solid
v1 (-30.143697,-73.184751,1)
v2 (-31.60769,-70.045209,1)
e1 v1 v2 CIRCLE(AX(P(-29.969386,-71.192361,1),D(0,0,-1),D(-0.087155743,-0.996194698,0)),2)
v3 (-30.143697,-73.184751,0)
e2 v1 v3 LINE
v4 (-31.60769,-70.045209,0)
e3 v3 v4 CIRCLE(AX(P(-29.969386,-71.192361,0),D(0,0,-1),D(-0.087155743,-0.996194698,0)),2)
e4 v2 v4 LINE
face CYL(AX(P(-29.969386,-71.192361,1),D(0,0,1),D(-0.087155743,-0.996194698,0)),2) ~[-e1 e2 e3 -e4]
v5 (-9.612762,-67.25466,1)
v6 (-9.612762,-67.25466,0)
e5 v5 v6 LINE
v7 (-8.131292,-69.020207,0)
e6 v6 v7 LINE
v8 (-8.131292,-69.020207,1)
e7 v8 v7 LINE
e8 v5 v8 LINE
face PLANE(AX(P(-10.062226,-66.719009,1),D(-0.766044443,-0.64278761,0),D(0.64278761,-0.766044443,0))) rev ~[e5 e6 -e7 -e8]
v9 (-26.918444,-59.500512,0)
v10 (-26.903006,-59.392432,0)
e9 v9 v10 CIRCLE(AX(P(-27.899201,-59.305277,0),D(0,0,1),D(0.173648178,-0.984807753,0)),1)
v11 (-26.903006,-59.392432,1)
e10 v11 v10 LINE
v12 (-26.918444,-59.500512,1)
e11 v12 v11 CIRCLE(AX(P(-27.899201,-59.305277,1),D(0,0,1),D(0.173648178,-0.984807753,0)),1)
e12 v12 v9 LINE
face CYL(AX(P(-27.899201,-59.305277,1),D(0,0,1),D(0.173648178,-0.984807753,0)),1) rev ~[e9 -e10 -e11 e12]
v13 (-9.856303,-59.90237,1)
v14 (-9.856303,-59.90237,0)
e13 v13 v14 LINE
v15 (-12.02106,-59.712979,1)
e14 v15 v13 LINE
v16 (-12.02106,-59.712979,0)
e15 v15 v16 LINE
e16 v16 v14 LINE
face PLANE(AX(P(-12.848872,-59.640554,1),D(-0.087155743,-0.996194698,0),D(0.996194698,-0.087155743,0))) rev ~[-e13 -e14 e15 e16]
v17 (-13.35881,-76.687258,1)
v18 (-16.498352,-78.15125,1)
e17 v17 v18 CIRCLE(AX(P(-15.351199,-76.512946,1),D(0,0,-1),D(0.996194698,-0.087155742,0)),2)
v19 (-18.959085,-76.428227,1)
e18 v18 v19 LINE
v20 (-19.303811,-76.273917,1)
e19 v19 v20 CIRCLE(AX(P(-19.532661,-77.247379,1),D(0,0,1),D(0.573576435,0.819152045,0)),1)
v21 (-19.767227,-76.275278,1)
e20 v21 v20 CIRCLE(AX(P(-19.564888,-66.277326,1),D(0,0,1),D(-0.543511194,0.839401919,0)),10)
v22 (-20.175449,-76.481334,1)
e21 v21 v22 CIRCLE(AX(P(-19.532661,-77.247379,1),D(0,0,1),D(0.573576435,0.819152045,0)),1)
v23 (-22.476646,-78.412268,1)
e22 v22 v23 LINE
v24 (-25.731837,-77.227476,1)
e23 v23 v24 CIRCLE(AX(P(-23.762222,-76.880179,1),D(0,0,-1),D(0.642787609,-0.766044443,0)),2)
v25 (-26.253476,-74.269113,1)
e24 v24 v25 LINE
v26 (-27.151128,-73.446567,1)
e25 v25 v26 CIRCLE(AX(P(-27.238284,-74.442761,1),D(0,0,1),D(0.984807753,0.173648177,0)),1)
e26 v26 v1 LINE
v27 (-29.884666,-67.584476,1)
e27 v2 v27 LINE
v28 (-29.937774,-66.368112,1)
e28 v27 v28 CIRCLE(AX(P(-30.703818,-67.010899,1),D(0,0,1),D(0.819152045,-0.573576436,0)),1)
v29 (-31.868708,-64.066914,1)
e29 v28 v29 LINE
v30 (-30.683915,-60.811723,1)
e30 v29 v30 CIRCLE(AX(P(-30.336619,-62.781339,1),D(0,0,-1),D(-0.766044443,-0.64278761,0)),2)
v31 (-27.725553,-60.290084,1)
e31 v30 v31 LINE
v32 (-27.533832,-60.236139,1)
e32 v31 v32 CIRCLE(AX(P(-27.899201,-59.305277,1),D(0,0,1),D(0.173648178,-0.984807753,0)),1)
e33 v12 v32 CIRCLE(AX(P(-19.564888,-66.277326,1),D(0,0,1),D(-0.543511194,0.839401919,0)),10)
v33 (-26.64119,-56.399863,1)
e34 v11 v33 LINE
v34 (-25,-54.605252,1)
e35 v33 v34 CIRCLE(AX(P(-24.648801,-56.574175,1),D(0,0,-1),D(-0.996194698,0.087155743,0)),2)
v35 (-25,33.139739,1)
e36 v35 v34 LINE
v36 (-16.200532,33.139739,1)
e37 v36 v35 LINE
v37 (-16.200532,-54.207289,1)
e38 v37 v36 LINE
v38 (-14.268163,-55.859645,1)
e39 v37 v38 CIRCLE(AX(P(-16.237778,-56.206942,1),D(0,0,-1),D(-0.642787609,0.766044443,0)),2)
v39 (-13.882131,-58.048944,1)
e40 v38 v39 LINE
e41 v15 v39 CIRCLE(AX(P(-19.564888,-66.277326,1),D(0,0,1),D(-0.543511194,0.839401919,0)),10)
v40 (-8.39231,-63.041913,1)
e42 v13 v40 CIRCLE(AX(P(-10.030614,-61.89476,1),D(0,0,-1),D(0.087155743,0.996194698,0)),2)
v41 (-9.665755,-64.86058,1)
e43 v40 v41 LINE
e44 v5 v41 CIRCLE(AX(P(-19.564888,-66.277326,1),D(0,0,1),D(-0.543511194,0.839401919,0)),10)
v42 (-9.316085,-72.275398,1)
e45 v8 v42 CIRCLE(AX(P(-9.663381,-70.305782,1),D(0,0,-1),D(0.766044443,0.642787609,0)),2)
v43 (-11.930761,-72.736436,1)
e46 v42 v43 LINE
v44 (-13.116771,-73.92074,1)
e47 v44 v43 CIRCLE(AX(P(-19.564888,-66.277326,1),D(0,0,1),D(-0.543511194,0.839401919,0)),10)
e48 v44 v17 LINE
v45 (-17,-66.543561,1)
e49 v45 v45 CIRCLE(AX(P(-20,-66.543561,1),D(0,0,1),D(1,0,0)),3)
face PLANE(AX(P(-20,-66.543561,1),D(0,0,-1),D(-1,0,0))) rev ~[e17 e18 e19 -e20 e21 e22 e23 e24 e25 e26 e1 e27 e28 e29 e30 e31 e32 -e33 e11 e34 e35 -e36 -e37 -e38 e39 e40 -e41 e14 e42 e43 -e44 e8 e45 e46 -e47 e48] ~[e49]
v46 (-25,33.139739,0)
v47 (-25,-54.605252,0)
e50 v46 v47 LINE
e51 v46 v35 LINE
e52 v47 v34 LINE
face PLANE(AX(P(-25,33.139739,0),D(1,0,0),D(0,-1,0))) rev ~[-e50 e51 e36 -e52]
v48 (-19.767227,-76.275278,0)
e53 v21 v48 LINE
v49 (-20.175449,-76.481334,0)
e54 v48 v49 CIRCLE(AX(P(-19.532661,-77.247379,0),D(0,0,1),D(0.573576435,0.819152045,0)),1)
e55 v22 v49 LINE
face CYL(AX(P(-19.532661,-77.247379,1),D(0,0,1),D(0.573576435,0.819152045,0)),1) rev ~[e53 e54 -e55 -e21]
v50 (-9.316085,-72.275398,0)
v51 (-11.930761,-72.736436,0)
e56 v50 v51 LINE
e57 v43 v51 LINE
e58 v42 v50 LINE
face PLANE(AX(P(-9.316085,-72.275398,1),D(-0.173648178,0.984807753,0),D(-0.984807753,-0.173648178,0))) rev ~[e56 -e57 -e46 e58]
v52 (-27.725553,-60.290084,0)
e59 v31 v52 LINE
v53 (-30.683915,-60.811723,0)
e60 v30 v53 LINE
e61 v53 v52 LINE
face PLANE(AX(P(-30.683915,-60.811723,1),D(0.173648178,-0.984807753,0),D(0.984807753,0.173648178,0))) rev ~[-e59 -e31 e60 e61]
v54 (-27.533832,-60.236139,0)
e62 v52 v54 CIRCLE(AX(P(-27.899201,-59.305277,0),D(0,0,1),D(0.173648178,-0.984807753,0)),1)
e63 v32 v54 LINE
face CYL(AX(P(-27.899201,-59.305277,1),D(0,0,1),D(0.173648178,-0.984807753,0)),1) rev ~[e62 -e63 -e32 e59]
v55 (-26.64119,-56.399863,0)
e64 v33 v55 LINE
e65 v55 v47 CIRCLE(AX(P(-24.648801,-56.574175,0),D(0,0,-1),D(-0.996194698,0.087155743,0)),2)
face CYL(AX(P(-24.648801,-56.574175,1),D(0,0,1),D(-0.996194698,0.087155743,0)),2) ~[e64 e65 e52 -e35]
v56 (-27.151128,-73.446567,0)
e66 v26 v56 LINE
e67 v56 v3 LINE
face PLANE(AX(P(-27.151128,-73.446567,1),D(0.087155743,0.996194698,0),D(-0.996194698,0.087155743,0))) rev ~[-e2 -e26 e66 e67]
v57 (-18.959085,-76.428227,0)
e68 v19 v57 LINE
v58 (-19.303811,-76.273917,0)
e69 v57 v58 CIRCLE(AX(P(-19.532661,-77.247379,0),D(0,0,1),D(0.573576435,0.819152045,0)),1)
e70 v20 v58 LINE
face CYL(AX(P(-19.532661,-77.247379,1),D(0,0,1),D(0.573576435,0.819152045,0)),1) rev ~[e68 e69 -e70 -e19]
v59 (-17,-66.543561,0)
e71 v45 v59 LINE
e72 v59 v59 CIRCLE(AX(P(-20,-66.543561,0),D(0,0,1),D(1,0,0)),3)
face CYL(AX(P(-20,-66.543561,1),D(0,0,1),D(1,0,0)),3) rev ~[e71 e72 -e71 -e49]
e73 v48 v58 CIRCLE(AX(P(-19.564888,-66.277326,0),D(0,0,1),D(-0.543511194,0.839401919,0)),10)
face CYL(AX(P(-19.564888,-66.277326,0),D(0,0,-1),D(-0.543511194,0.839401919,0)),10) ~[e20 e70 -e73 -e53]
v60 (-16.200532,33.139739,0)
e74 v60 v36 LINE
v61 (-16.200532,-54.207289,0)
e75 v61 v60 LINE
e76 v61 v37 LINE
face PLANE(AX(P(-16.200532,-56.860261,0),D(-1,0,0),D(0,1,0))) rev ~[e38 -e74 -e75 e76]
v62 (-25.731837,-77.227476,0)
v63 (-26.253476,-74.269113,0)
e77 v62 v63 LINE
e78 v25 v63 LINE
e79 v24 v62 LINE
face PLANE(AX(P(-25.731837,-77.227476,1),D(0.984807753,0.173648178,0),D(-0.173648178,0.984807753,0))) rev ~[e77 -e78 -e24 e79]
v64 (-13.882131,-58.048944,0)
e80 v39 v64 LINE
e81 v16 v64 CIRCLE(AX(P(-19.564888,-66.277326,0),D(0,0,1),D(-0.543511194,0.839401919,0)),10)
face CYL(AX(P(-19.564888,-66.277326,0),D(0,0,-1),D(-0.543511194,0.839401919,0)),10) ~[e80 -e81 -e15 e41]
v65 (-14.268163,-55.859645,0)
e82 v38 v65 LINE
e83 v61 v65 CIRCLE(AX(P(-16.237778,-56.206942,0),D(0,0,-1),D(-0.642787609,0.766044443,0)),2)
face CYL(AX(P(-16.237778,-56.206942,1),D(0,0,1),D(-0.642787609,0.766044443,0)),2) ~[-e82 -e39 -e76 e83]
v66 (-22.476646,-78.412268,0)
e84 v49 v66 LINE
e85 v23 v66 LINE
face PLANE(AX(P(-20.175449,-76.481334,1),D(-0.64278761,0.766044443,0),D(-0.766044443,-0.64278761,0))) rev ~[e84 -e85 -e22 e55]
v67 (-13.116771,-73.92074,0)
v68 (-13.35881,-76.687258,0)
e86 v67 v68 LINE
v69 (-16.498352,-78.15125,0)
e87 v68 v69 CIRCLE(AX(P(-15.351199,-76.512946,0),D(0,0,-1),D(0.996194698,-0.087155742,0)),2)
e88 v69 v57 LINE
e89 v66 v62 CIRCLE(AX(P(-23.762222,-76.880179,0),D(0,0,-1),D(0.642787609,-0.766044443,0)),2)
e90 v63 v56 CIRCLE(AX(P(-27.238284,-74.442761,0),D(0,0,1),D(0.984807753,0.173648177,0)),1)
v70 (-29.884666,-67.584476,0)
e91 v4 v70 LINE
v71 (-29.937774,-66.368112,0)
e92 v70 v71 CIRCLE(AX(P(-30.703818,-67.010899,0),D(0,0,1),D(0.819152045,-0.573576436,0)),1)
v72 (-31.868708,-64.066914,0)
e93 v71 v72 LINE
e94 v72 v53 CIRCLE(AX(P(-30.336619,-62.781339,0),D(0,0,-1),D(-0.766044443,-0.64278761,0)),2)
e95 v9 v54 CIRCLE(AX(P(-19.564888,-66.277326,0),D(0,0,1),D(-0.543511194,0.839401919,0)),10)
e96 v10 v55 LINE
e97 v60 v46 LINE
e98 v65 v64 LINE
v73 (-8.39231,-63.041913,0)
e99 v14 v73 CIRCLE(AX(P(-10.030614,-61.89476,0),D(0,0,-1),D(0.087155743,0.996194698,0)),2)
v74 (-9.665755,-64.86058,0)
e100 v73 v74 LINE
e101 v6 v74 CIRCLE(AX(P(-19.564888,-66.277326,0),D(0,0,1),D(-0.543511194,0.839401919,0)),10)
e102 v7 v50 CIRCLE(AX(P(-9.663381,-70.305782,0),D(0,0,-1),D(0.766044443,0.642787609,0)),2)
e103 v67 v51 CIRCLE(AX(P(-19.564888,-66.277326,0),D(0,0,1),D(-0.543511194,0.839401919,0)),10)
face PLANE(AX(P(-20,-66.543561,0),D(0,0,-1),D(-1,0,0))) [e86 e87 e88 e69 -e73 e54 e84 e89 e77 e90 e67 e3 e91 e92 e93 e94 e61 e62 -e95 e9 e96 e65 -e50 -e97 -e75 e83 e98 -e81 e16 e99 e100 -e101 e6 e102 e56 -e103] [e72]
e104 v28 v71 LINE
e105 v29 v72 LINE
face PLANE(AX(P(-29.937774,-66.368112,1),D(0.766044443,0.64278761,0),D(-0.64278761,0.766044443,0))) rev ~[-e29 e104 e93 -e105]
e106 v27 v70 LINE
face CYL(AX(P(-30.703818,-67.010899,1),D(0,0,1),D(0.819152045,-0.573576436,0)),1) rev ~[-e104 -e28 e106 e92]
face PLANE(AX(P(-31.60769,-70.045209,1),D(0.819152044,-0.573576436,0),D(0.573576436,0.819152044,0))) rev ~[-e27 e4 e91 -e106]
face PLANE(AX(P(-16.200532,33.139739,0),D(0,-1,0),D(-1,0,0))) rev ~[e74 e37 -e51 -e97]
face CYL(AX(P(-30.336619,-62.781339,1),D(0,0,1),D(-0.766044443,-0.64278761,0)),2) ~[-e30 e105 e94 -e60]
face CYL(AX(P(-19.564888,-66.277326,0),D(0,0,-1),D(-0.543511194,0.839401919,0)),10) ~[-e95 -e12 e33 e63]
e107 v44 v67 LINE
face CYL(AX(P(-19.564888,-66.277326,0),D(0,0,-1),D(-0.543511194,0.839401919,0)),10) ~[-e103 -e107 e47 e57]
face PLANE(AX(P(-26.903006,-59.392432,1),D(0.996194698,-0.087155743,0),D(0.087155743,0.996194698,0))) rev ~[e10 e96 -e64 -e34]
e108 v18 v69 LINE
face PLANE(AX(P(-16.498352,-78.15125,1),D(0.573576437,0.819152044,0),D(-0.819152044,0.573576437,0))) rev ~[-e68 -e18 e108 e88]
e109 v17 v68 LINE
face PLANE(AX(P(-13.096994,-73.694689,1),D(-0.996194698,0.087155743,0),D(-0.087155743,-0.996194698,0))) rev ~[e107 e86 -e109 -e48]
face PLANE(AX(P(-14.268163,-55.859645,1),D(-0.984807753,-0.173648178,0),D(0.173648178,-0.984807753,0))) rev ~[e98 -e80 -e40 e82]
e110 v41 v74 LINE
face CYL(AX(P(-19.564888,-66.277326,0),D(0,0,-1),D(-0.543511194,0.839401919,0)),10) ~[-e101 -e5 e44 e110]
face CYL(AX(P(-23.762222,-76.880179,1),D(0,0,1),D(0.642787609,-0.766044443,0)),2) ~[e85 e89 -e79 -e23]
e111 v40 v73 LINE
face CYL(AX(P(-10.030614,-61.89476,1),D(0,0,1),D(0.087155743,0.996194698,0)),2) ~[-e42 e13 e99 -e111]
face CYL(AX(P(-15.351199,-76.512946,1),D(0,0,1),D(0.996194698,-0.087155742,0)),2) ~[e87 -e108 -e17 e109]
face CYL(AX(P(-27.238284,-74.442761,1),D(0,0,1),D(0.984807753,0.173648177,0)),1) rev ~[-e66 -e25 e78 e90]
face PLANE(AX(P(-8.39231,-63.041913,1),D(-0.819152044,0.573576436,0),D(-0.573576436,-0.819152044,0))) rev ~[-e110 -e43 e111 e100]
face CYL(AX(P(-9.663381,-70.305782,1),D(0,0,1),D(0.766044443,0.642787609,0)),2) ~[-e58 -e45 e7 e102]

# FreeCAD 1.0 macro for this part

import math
import FreeCAD as App
import Part
import Sketcher
from FreeCAD import Vector
Q = App.Units.Quantity

doc = App.newDocument("Part")
body = doc.addObject("PartDesign::Body", "Body")

# Sketch on XY plane
sketch1 = doc.addObject("Sketcher::SketchObject", "Sketch")
body.addObject(sketch1)
sketch1.AttachmentSupport = (doc.XY_Plane, [""])
sketch1.MapMode = "FlatFace"
sketch1.addGeometry(Part.LineSegment(Vector(-16, -57, 0), Vector(-16, 33, 0)), False)
sketch1.addGeometry(Part.LineSegment(Vector(-16, 33, 0), Vector(-25, 33, 0)), False)
sketch1.addGeometry(Part.LineSegment(Vector(-25, 33, 0), Vector(-25, -58, 0)), False)
sketch1.addGeometry(Part.ArcOfCircle(Part.Circle(Vector(-20, -66, 0), Vector(0, 0, 1), 10), math.radians(123), math.radians(430)), False)
sketch1.addGeometry(Part.Circle(Vector(-20, -66, 0), Vector(0, 0, 1), 5), False)
sketch1.addConstraint(Sketcher.Constraint("Coincident", 0, 2, 1, 1))
sketch1.addConstraint(Sketcher.Constraint("Coincident", 1, 2, 2, 1))
sketch1.addConstraint(Sketcher.Constraint("Coincident", 2, 2, 3, 1))
sketch1.addConstraint(Sketcher.Constraint("Coincident", 3, 2, 0, 1))
sketch1.addConstraint(Sketcher.Constraint("Vertical", 0))
sketch1.addConstraint(Sketcher.Constraint("Horizontal", 1))
sketch1.addConstraint(Sketcher.Constraint("Vertical", 2))
sketch1.addConstraint(Sketcher.Constraint("Coincident", 4, 3, 3, 3))
sketch1.addConstraint(Sketcher.Constraint("Diameter", 4, Q("10 mm")))
sketch1.addConstraint(Sketcher.Constraint("Radius", 3, Q("10 mm")))
sketch1.addConstraint(Sketcher.Constraint("DistanceY", 0, 1, 0, 2, Q("90 mm")))
sketch1.addConstraint(Sketcher.Constraint("DistanceX", 1, 2, -1, 1, Q("25 mm")))
sketch1.addConstraint(Sketcher.Constraint("DistanceX", 1, 2, 1, 1, Q("8.799468 mm")))
sketch1.addConstraint(Sketcher.Constraint("DistanceY", 2, 2, 2, 1, Q("91.023045 mm")))
sketch1.addConstraint(Sketcher.Constraint("DistanceY", -1, 1, 0, 2, Q("33.139739 mm")))
pad1 = doc.addObject("PartDesign::Pad", "Pad")
body.addObject(pad1)
pad1.Profile = sketch1
pad1.Length = 1

# Sketch on XY plane
sketch2 = doc.addObject("Sketcher::SketchObject", "Sketch001")
body.addObject(sketch2)
sketch2.AttachmentSupport = (doc.XY_Plane, [""])
sketch2.MapMode = "FlatFace"
sketch2.AttachmentOffset = App.Placement(Vector(0, 0, 1), App.Rotation())
sketch2.addGeometry(Part.LineSegment(Vector(-13.7, -58.8, 0), Vector(-14.3, -55.9, 0)), False)
sketch2.addGeometry(Part.ArcOfCircle(Part.Circle(Vector(-16.2, -56.2, 0), Vector(0, 0, 1), 2), math.radians(10), math.radians(130)), False)
sketch2.addGeometry(Part.LineSegment(Vector(-17.5, -54.7, 0), Vector(-19.8, -56.6, 0)), False)
sketch2.addGeometry(Part.ArcOfCircle(Part.Circle(Vector(-20.5, -55.8, 0), Vector(0, 0, 1), 1), math.radians(-125), math.radians(-50)), False)
sketch2.addGeometry(Part.LineSegment(Vector(-21, -56.7, 0), Vector(-23.5, -54.9, 0)), False)
sketch2.addGeometry(Part.ArcOfCircle(Part.Circle(Vector(-24.6, -56.6, 0), Vector(0, 0, 1), 2), math.radians(55), math.radians(175)), False)
sketch2.addGeometry(Part.LineSegment(Vector(-26.6, -56.4, 0), Vector(-26.9, -59.4, 0)), False)
sketch2.addGeometry(Part.ArcOfCircle(Part.Circle(Vector(-27.9, -59.3, 0), Vector(0, 0, 1), 1), math.radians(-80), math.radians(-5)), False)
sketch2.addGeometry(Part.LineSegment(Vector(-27.7, -60.3, 0), Vector(-30.7, -60.8, 0)), False)
sketch2.addGeometry(Part.ArcOfCircle(Part.Circle(Vector(-30.3, -62.8, 0), Vector(0, 0, 1), 2), math.radians(100), math.radians(220)), False)
sketch2.addGeometry(Part.LineSegment(Vector(-31.9, -64.1, 0), Vector(-29.9, -66.4, 0)), False)
sketch2.addGeometry(Part.ArcOfCircle(Part.Circle(Vector(-30.7, -67, 0), Vector(0, 0, 1), 1), math.radians(-35), math.radians(40)), False)
sketch2.addGeometry(Part.LineSegment(Vector(-29.9, -67.6, 0), Vector(-31.6, -70, 0)), False)
sketch2.addGeometry(Part.ArcOfCircle(Part.Circle(Vector(-30, -71.2, 0), Vector(0, 0, 1), 2), math.radians(145), math.radians(265)), False)
sketch2.addGeometry(Part.LineSegment(Vector(-30.1, -73.2, 0), Vector(-27.2, -73.4, 0)), False)
sketch2.addGeometry(Part.ArcOfCircle(Part.Circle(Vector(-27.2, -74.4, 0), Vector(0, 0, 1), 1), math.radians(10), math.radians(85)), False)
sketch2.addGeometry(Part.LineSegment(Vector(-26.3, -74.3, 0), Vector(-25.7, -77.2, 0)), False)
sketch2.addGeometry(Part.ArcOfCircle(Part.Circle(Vector(-23.8, -76.9, 0), Vector(0, 0, 1), 2), math.radians(-170), math.radians(-50)), False)
sketch2.addGeometry(Part.LineSegment(Vector(-22.5, -78.4, 0), Vector(-20.2, -76.5, 0)), False)
sketch2.addGeometry(Part.ArcOfCircle(Part.Circle(Vector(-19.5, -77.2, 0), Vector(0, 0, 1), 1), math.radians(55), math.radians(130)), False)
sketch2.addGeometry(Part.LineSegment(Vector(-19, -76.4, 0), Vector(-16.5, -78.2, 0)), False)
sketch2.addGeometry(Part.ArcOfCircle(Part.Circle(Vector(-15.4, -76.5, 0), Vector(0, 0, 1), 2), math.radians(-125), math.radians(-5)), False)
sketch2.addGeometry(Part.LineSegment(Vector(-13.4, -76.7, 0), Vector(-13.1, -73.7, 0)), False)
sketch2.addGeometry(Part.ArcOfCircle(Part.Circle(Vector(-12.1, -73.8, 0), Vector(0, 0, 1), 1), math.radians(100), math.radians(175)), False)
sketch2.addGeometry(Part.LineSegment(Vector(-12.3, -72.8, 0), Vector(-9.3, -72.3, 0)), False)
sketch2.addGeometry(Part.ArcOfCircle(Part.Circle(Vector(-9.7, -70.3, 0), Vector(0, 0, 1), 2), math.radians(-80), math.radians(40)), False)
sketch2.addGeometry(Part.LineSegment(Vector(-8.1, -69, 0), Vector(-10.1, -66.7, 0)), False)
sketch2.addGeometry(Part.ArcOfCircle(Part.Circle(Vector(-9.3, -66.1, 0), Vector(0, 0, 1), 1), math.radians(145), math.radians(220)), False)
sketch2.addGeometry(Part.LineSegment(Vector(-10.1, -65.5, 0), Vector(-8.4, -63, 0)), False)
sketch2.addGeometry(Part.ArcOfCircle(Part.Circle(Vector(-10, -61.9, 0), Vector(0, 0, 1), 2), math.radians(-35), math.radians(85)), False)
sketch2.addGeometry(Part.LineSegment(Vector(-9.9, -59.9, 0), Vector(-12.8, -59.6, 0)), False)
sketch2.addGeometry(Part.ArcOfCircle(Part.Circle(Vector(-12.8, -58.6, 0), Vector(0, 0, 1), 1), math.radians(-170), math.radians(-95)), False)
sketch2.addGeometry(Part.Circle(Vector(-20, -66.5, 0), Vector(0, 0, 1), 3), False)
sketch2.addConstraint(Sketcher.Constraint("Tangent", 0, 2, 1, 1))
sketch2.addConstraint(Sketcher.Constraint("Tangent", 1, 2, 2, 1))
sketch2.addConstraint(Sketcher.Constraint("Tangent", 2, 2, 3, 2))
sketch2.addConstraint(Sketcher.Constraint("Tangent", 3, 1, 4, 1))
sketch2.addConstraint(Sketcher.Constraint("Tangent", 4, 2, 5, 1))
sketch2.addConstraint(Sketcher.Constraint("Tangent", 5, 2, 6, 1))
sketch2.addConstraint(Sketcher.Constraint("Tangent", 6, 2, 7, 2))
sketch2.addConstraint(Sketcher.Constraint("Tangent", 7, 1, 8, 1))
sketch2.addConstraint(Sketcher.Constraint("Tangent", 8, 2, 9, 1))
sketch2.addConstraint(Sketcher.Constraint("Tangent", 9, 2, 10, 1))
sketch2.addConstraint(Sketcher.Constraint("Tangent", 10, 2, 11, 2))
sketch2.addConstraint(Sketcher.Constraint("Tangent", 11, 1, 12, 1))
sketch2.addConstraint(Sketcher.Constraint("Tangent", 12, 2, 13, 1))
sketch2.addConstraint(Sketcher.Constraint("Tangent", 13, 2, 14, 1))
sketch2.addConstraint(Sketcher.Constraint("Tangent", 14, 2, 15, 2))
sketch2.addConstraint(Sketcher.Constraint("Tangent", 15, 1, 16, 1))
sketch2.addConstraint(Sketcher.Constraint("Tangent", 16, 2, 17, 1))
sketch2.addConstraint(Sketcher.Constraint("Tangent", 17, 2, 18, 1))
sketch2.addConstraint(Sketcher.Constraint("Tangent", 18, 2, 19, 2))
sketch2.addConstraint(Sketcher.Constraint("Tangent", 19, 1, 20, 1))
sketch2.addConstraint(Sketcher.Constraint("Tangent", 20, 2, 21, 1))
sketch2.addConstraint(Sketcher.Constraint("Tangent", 21, 2, 22, 1))
sketch2.addConstraint(Sketcher.Constraint("Tangent", 22, 2, 23, 2))
sketch2.addConstraint(Sketcher.Constraint("Tangent", 23, 1, 24, 1))
sketch2.addConstraint(Sketcher.Constraint("Tangent", 24, 2, 25, 1))
sketch2.addConstraint(Sketcher.Constraint("Tangent", 25, 2, 26, 1))
sketch2.addConstraint(Sketcher.Constraint("Tangent", 26, 2, 27, 2))
sketch2.addConstraint(Sketcher.Constraint("Tangent", 27, 1, 28, 1))
sketch2.addConstraint(Sketcher.Constraint("Tangent", 28, 2, 29, 1))
sketch2.addConstraint(Sketcher.Constraint("Tangent", 29, 2, 30, 1))
sketch2.addConstraint(Sketcher.Constraint("Tangent", 30, 2, 31, 2))
sketch2.addConstraint(Sketcher.Constraint("Tangent", 31, 1, 0, 1))
sketch2.addConstraint(Sketcher.Constraint("Equal", 1, 5))
sketch2.addConstraint(Sketcher.Constraint("Equal", 3, 7))
sketch2.addConstraint(Sketcher.Constraint("Equal", 5, 9))
sketch2.addConstraint(Sketcher.Constraint("Equal", 7, 11))
sketch2.addConstraint(Sketcher.Constraint("Equal", 9, 13))
sketch2.addConstraint(Sketcher.Constraint("Equal", 11, 15))
sketch2.addConstraint(Sketcher.Constraint("Equal", 13, 17))
sketch2.addConstraint(Sketcher.Constraint("Equal", 15, 19))
sketch2.addConstraint(Sketcher.Constraint("Equal", 17, 21))
sketch2.addConstraint(Sketcher.Constraint("Equal", 19, 23))
sketch2.addConstraint(Sketcher.Constraint("Equal", 21, 25))
sketch2.addConstraint(Sketcher.Constraint("Equal", 23, 27))
sketch2.addConstraint(Sketcher.Constraint("Equal", 25, 29))
sketch2.addConstraint(Sketcher.Constraint("Equal", 27, 31))
sketch2.addConstraint(Sketcher.Constraint("Perpendicular", 0, 8))
sketch2.addConstraint(Sketcher.Constraint("Perpendicular", 2, 10))
sketch2.addConstraint(Sketcher.Constraint("Perpendicular", 4, 12))
sketch2.addConstraint(Sketcher.Constraint("Perpendicular", 6, 14))
sketch2.addConstraint(Sketcher.Constraint("Perpendicular", 8, 16))
sketch2.addConstraint(Sketcher.Constraint("Perpendicular", 10, 18))
sketch2.addConstraint(Sketcher.Constraint("Perpendicular", 12, 20))
sketch2.addConstraint(Sketcher.Constraint("Perpendicular", 14, 22))
sketch2.addConstraint(Sketcher.Constraint("Perpendicular", 16, 24))
sketch2.addConstraint(Sketcher.Constraint("Perpendicular", 18, 26))
sketch2.addConstraint(Sketcher.Constraint("Perpendicular", 20, 28))
sketch2.addConstraint(Sketcher.Constraint("Perpendicular", 22, 30))
sketch2.addConstraint(Sketcher.Constraint("Equal", 0, 2))
sketch2.addConstraint(Sketcher.Constraint("Equal", 2, 4))
sketch2.addConstraint(Sketcher.Constraint("Equal", 4, 6))
sketch2.addConstraint(Sketcher.Constraint("Equal", 6, 8))
sketch2.addConstraint(Sketcher.Constraint("Equal", 8, 10))
sketch2.addConstraint(Sketcher.Constraint("Equal", 10, 12))
sketch2.addConstraint(Sketcher.Constraint("Equal", 12, 14))
sketch2.addConstraint(Sketcher.Constraint("Equal", 14, 16))
sketch2.addConstraint(Sketcher.Constraint("Equal", 16, 18))
sketch2.addConstraint(Sketcher.Constraint("Equal", 18, 20))
sketch2.addConstraint(Sketcher.Constraint("Equal", 20, 22))
sketch2.addConstraint(Sketcher.Constraint("Equal", 22, 24))
sketch2.addConstraint(Sketcher.Constraint("Equal", 24, 26))
sketch2.addConstraint(Sketcher.Constraint("Diameter", 32, Q("6 mm")))
sketch2.addConstraint(Sketcher.Constraint("Radius", 1, Q("2 mm")))
sketch2.addConstraint(Sketcher.Constraint("Radius", 3, Q("1 mm")))
sketch2.addConstraint(Sketcher.Constraint("Angle", 0, Q("100 deg")))
sketch2.addConstraint(Sketcher.Constraint("Angle", 2, Q("-140 deg")))
sketch2.addConstraint(Sketcher.Constraint("Angle", 4, Q("145 deg")))
sketch2.addConstraint(Sketcher.Constraint("Angle", 6, Q("-95 deg")))
sketch2.addConstraint(Sketcher.Constraint("DistanceX", 32, 3, -1, 1, Q("20 mm")))
sketch2.addConstraint(Sketcher.Constraint("Distance", 0, Q("3.004 mm")))
sketch2.addConstraint(Sketcher.Constraint("DistanceX", 5, 3, -1, 1, Q("24.648801 mm")))
sketch2.addConstraint(Sketcher.Constraint("DistanceY", 11, 3, -1, 1, Q("67.010899 mm")))
sketch2.addConstraint(Sketcher.Constraint("DistanceY", 32, 3, 31, 3, Q("7.899201 mm")))
pad2 = doc.addObject("PartDesign::Pad", "Pad001")
body.addObject(pad2)
pad2.Profile = sketch2
pad2.Length = 1
pad2.Reversed = True

doc.recompute()
